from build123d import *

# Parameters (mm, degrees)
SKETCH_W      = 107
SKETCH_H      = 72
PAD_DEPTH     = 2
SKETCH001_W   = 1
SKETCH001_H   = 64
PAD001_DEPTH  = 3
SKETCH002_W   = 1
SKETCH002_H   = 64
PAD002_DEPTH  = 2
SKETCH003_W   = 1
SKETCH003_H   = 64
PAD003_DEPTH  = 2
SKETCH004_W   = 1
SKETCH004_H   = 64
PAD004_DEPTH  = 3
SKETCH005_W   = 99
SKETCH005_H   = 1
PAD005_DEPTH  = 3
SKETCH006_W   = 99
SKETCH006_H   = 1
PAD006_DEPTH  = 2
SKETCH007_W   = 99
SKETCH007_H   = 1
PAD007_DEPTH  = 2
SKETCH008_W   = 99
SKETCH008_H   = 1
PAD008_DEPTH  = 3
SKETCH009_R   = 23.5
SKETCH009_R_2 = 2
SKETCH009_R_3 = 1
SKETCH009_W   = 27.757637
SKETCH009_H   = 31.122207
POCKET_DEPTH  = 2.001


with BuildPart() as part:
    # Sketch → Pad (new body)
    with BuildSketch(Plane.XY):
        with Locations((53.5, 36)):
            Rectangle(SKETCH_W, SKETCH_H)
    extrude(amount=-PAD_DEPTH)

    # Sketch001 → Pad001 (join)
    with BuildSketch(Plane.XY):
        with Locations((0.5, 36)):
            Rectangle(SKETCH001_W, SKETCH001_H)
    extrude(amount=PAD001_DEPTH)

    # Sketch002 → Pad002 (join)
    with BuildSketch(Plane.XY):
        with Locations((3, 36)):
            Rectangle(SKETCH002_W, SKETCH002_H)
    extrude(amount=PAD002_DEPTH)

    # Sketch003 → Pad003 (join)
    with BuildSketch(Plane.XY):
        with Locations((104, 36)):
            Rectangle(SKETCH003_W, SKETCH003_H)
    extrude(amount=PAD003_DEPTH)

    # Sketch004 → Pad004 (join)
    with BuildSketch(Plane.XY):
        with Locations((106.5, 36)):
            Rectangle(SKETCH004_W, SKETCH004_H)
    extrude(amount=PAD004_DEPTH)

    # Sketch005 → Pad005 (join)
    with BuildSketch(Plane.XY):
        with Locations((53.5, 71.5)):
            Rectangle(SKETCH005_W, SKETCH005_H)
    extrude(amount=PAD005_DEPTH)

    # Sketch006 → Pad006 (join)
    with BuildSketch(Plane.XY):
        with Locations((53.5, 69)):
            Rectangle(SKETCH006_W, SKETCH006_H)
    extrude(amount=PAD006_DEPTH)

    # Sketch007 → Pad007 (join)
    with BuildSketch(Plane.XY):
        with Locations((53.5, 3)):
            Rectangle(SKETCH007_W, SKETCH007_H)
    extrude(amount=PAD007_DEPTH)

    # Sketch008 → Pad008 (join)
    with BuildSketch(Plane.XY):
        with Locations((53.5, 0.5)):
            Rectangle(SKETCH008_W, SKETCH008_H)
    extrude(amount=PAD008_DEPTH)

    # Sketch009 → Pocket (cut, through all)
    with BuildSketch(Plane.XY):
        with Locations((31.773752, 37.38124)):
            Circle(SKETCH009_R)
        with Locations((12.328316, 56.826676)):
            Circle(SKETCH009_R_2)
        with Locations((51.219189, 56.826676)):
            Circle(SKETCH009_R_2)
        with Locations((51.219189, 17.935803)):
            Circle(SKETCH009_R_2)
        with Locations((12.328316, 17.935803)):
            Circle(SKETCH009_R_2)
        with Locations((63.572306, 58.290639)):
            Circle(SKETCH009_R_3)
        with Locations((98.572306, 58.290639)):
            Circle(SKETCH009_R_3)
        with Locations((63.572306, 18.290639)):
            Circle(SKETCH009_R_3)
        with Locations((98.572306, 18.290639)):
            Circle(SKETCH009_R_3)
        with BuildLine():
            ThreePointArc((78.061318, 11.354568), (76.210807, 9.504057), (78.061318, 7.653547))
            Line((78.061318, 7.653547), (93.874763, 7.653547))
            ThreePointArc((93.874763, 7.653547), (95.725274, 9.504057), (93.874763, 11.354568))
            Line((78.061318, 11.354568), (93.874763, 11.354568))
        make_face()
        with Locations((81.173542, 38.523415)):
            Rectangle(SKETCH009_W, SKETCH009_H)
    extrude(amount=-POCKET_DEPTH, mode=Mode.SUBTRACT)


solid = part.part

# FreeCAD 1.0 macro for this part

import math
import FreeCAD as App
import Part
import Sketcher

V = App.Vector

doc = App.newDocument("Part")
body = doc.addObject("PartDesign::Body", "Body")

sketch1 = body.newObject("Sketcher::SketchObject", "Sketch")
sketch1.AttachmentSupport = (doc.getObject("XY_Plane"), [""])
sketch1.MapMode = "FlatFace"
sketch1.addGeometry([
    Part.LineSegment(V(0, 72, 0), V(0, 0, 0)),
    Part.LineSegment(V(0, 0, 0), V(107, 0, 0)),
    Part.LineSegment(V(107, 0, 0), V(107, 72, 0)),
    Part.LineSegment(V(107, 72, 0), V(0, 72, 0)),
], False)
sketch1.addConstraint([
    Sketcher.Constraint("Coincident", 0, 2, 1, 1),
    Sketcher.Constraint("Coincident", 1, 2, 2, 1),
    Sketcher.Constraint("Coincident", 2, 2, 3, 1),
    Sketcher.Constraint("Coincident", 3, 2, 0, 1),
    Sketcher.Constraint("Vertical", 0),
    Sketcher.Constraint("Horizontal", 1),
    Sketcher.Constraint("Vertical", 2),
    Sketcher.Constraint("Horizontal", 3),
    Sketcher.Constraint("Coincident", 0, 2, -1, 1),
    Sketcher.Constraint("DistanceX", 1, 1, 1, 2, 107.0),
    Sketcher.Constraint("DistanceY", 0, 2, 0, 1, 72.0),
])
pad1 = body.newObject("PartDesign::Pad", "Pad")
pad1.Profile = sketch1
pad1.Length = 2
pad1.Reversed = True

sketch2 = body.newObject("Sketcher::SketchObject", "Sketch001")
sketch2.AttachmentSupport = (doc.getObject("XY_Plane"), [""])
sketch2.MapMode = "FlatFace"
sketch2.addGeometry([
    Part.LineSegment(V(0, 68, 0), V(0, 4, 0)),
    Part.LineSegment(V(0, 4, 0), V(1, 4, 0)),
    Part.LineSegment(V(1, 4, 0), V(1, 68, 0)),
    Part.LineSegment(V(1, 68, 0), V(0, 68, 0)),
], False)
sketch2.addConstraint([
    Sketcher.Constraint("Coincident", 0, 2, 1, 1),
    Sketcher.Constraint("Coincident", 1, 2, 2, 1),
    Sketcher.Constraint("Coincident", 2, 2, 3, 1),
    Sketcher.Constraint("Coincident", 3, 2, 0, 1),
    Sketcher.Constraint("Vertical", 0),
    Sketcher.Constraint("Horizontal", 1),
    Sketcher.Constraint("Vertical", 2),
    Sketcher.Constraint("Horizontal", 3),
    Sketcher.Constraint("PointOnObject", 0, 2, -2),
    Sketcher.Constraint("DistanceX", 1, 1, 1, 2, 1.0),
    Sketcher.Constraint("DistanceY", 0, 2, 0, 1, 64.0),
    Sketcher.Constraint("DistanceY", -1, 1, 0, 2, 4.0),
])
pad2 = body.newObject("PartDesign::Pad", "Pad001")
pad2.Profile = sketch2
pad2.Length = 3

sketch3 = body.newObject("Sketcher::SketchObject", "Sketch002")
sketch3.AttachmentSupport = (doc.getObject("XY_Plane"), [""])
sketch3.MapMode = "FlatFace"
sketch3.addGeometry([
    Part.LineSegment(V(2.5, 68, 0), V(2.5, 4, 0)),
    Part.LineSegment(V(2.5, 4, 0), V(3.5, 4, 0)),
    Part.LineSegment(V(3.5, 4, 0), V(3.5, 68, 0)),
    Part.LineSegment(V(3.5, 68, 0), V(2.5, 68, 0)),
], False)
sketch3.addConstraint([
    Sketcher.Constraint("Coincident", 0, 2, 1, 1),
    Sketcher.Constraint("Coincident", 1, 2, 2, 1),
    Sketcher.Constraint("Coincident", 2, 2, 3, 1),
    Sketcher.Constraint("Coincident", 3, 2, 0, 1),
    Sketcher.Constraint("Vertical", 0),
    Sketcher.Constraint("Horizontal", 1),
    Sketcher.Constraint("Vertical", 2),
    Sketcher.Constraint("Horizontal", 3),
    Sketcher.Constraint("DistanceX", 1, 1, 1, 2, 1.0),
    Sketcher.Constraint("DistanceY", 0, 2, 0, 1, 64.0),
    Sketcher.Constraint("DistanceY", -1, 1, 0, 2, 4.0),
    Sketcher.Constraint("DistanceX", -1, 1, 0, 2, 2.5),
])
pad3 = body.newObject("PartDesign::Pad", "Pad002")
pad3.Profile = sketch3
pad3.Length = 2

sketch4 = body.newObject("Sketcher::SketchObject", "Sketch003")
sketch4.AttachmentSupport = (doc.getObject("XY_Plane"), [""])
sketch4.MapMode = "FlatFace"
sketch4.addGeometry([
    Part.LineSegment(V(103.5, 68, 0), V(103.5, 4, 0)),
    Part.LineSegment(V(103.5, 4, 0), V(104.5, 4, 0)),
    Part.LineSegment(V(104.5, 4, 0), V(104.5, 68, 0)),
    Part.LineSegment(V(104.5, 68, 0), V(103.5, 68, 0)),
], False)
sketch4.addConstraint([
    Sketcher.Constraint("Coincident", 0, 2, 1, 1),
    Sketcher.Constraint("Coincident", 1, 2, 2, 1),
    Sketcher.Constraint("Coincident", 2, 2, 3, 1),
    Sketcher.Constraint("Coincident", 3, 2, 0, 1),
    Sketcher.Constraint("Vertical", 0),
    Sketcher.Constraint("Horizontal", 1),
    Sketcher.Constraint("Vertical", 2),
    Sketcher.Constraint("Horizontal", 3),
    Sketcher.Constraint("DistanceX", 1, 1, 1, 2, 1.0),
    Sketcher.Constraint("DistanceY", 0, 2, 0, 1, 64.0),
    Sketcher.Constraint("DistanceY", -1, 1, 0, 2, 4.0),
    Sketcher.Constraint("DistanceX", -1, 1, 0, 2, 103.5),
])
pad4 = body.newObject("PartDesign::Pad", "Pad003")
pad4.Profile = sketch4
pad4.Length = 2

sketch5 = body.newObject("Sketcher::SketchObject", "Sketch004")
sketch5.AttachmentSupport = (doc.getObject("XY_Plane"), [""])
sketch5.MapMode = "FlatFace"
sketch5.addGeometry([
    Part.LineSegment(V(106, 68, 0), V(106, 4, 0)),
    Part.LineSegment(V(106, 4, 0), V(107, 4, 0)),
    Part.LineSegment(V(107, 4, 0), V(107, 68, 0)),
    Part.LineSegment(V(107, 68, 0), V(106, 68, 0)),
], False)
sketch5.addConstraint([
    Sketcher.Constraint("Coincident", 0, 2, 1, 1),
    Sketcher.Constraint("Coincident", 1, 2, 2, 1),
    Sketcher.Constraint("Coincident", 2, 2, 3, 1),
    Sketcher.Constraint("Coincident", 3, 2, 0, 1),
    Sketcher.Constraint("Vertical", 0),
    Sketcher.Constraint("Horizontal", 1),
    Sketcher.Constraint("Vertical", 2),
    Sketcher.Constraint("Horizontal", 3),
    Sketcher.Constraint("DistanceX", 1, 1, 1, 2, 1.0),
    Sketcher.Constraint("DistanceY", 0, 2, 0, 1, 64.0),
    Sketcher.Constraint("DistanceX", -1, 1, 0, 2, 106.0),
    Sketcher.Constraint("DistanceY", -1, 1, 0, 2, 4.0),
])
pad5 = body.newObject("PartDesign::Pad", "Pad004")
pad5.Profile = sketch5
pad5.Length = 3

sketch6 = body.newObject("Sketcher::SketchObject", "Sketch005")
sketch6.AttachmentSupport = (doc.getObject("XY_Plane"), [""])
sketch6.MapMode = "FlatFace"
sketch6.addGeometry([
    Part.LineSegment(V(4, 72, 0), V(4, 71, 0)),
    Part.LineSegment(V(4, 71, 0), V(103, 71, 0)),
    Part.LineSegment(V(103, 71, 0), V(103, 72, 0)),
    Part.LineSegment(V(103, 72, 0), V(4, 72, 0)),
], False)
sketch6.addConstraint([
    Sketcher.Constraint("Coincident", 0, 2, 1, 1),
    Sketcher.Constraint("Coincident", 1, 2, 2, 1),
    Sketcher.Constraint("Coincident", 2, 2, 3, 1),
    Sketcher.Constraint("Coincident", 3, 2, 0, 1),
    Sketcher.Constraint("Vertical", 0),
    Sketcher.Constraint("Horizontal", 1),
    Sketcher.Constraint("Vertical", 2),
    Sketcher.Constraint("Horizontal", 3),
    Sketcher.Constraint("DistanceX", 1, 1, 1, 2, 99.0),
    Sketcher.Constraint("DistanceY", 0, 2, 0, 1, 1.0),
    Sketcher.Constraint("DistanceX", -1, 1, 0, 2, 4.0),
    Sketcher.Constraint("DistanceY", -1, 1, 0, 2, 71.0),
])
pad6 = body.newObject("PartDesign::Pad", "Pad005")
pad6.Profile = sketch6
pad6.Length = 3

sketch7 = body.newObject("Sketcher::SketchObject", "Sketch006")
sketch7.AttachmentSupport = (doc.getObject("XY_Plane"), [""])
sketch7.MapMode = "FlatFace"
sketch7.addGeometry([
    Part.LineSegment(V(4, 69.5, 0), V(4, 68.5, 0)),
    Part.LineSegment(V(4, 68.5, 0), V(103, 68.5, 0)),
    Part.LineSegment(V(103, 68.5, 0), V(103, 69.5, 0)),
    Part.LineSegment(V(103, 69.5, 0), V(4, 69.5, 0)),
], False)
sketch7.addConstraint([
    Sketcher.Constraint("Coincident", 0, 2, 1, 1),
    Sketcher.Constraint("Coincident", 1, 2, 2, 1),
    Sketcher.Constraint("Coincident", 2, 2, 3, 1),
    Sketcher.Constraint("Coincident", 3, 2, 0, 1),
    Sketcher.Constraint("Vertical", 0),
    Sketcher.Constraint("Horizontal", 1),
    Sketcher.Constraint("Vertical", 2),
    Sketcher.Constraint("Horizontal", 3),
    Sketcher.Constraint("DistanceX", 1, 1, 1, 2, 99.0),
    Sketcher.Constraint("DistanceY", 0, 2, 0, 1, 1.0),
    Sketcher.Constraint("DistanceX", -1, 1, 0, 2, 4.0),
    Sketcher.Constraint("DistanceY", -1, 1, 0, 2, 68.5),
])
pad7 = body.newObject("PartDesign::Pad", "Pad006")
pad7.Profile = sketch7
pad7.Length = 2

sketch8 = body.newObject("Sketcher::SketchObject", "Sketch007")
sketch8.AttachmentSupport = (doc.getObject("XY_Plane"), [""])
sketch8.MapMode = "FlatFace"
sketch8.addGeometry([
    Part.LineSegment(V(4, 3.5, 0), V(4, 2.5, 0)),
    Part.LineSegment(V(4, 2.5, 0), V(103, 2.5, 0)),
    Part.LineSegment(V(103, 2.5, 0), V(103, 3.5, 0)),
    Part.LineSegment(V(103, 3.5, 0), V(4, 3.5, 0)),
], False)
sketch8.addConstraint([
    Sketcher.Constraint("Coincident", 0, 2, 1, 1),
    Sketcher.Constraint("Coincident", 1, 2, 2, 1),
    Sketcher.Constraint("Coincident", 2, 2, 3, 1),
    Sketcher.Constraint("Coincident", 3, 2, 0, 1),
    Sketcher.Constraint("Vertical", 0),
    Sketcher.Constraint("Horizontal", 1),
    Sketcher.Constraint("Vertical", 2),
    Sketcher.Constraint("Horizontal", 3),
    Sketcher.Constraint("DistanceX", 1, 1, 1, 2, 99.0),
    Sketcher.Constraint("DistanceY", 0, 2, 0, 1, 1.0),
    Sketcher.Constraint("DistanceX", -1, 1, 0, 2, 4.0),
    Sketcher.Constraint("DistanceY", -1, 1, 0, 2, 2.5),
])
pad8 = body.newObject("PartDesign::Pad", "Pad007")
pad8.Profile = sketch8
pad8.Length = 2

sketch9 = body.newObject("Sketcher::SketchObject", "Sketch008")
sketch9.AttachmentSupport = (doc.getObject("XY_Plane"), [""])
sketch9.MapMode = "FlatFace"
sketch9.addGeometry([
    Part.LineSegment(V(4, 1, 0), V(4, 0, 0)),
    Part.LineSegment(V(4, 0, 0), V(103, 0, 0)),
    Part.LineSegment(V(103, 0, 0), V(103, 1, 0)),
    Part.LineSegment(V(103, 1, 0), V(4, 1, 0)),
], False)
sketch9.addConstraint([
    Sketcher.Constraint("Coincident", 0, 2, 1, 1),
    Sketcher.Constraint("Coincident", 1, 2, 2, 1),
    Sketcher.Constraint("Coincident", 2, 2, 3, 1),
    Sketcher.Constraint("Coincident", 3, 2, 0, 1),
    Sketcher.Constraint("Vertical", 0),
    Sketcher.Constraint("Horizontal", 1),
    Sketcher.Constraint("Vertical", 2),
    Sketcher.Constraint("Horizontal", 3),
    Sketcher.Constraint("PointOnObject", 0, 2, -1),
    Sketcher.Constraint("DistanceX", 1, 1, 1, 2, 99.0),
    Sketcher.Constraint("DistanceY", 0, 2, 0, 1, 1.0),
    Sketcher.Constraint("DistanceX", -1, 1, 0, 2, 4.0),
])
pad9 = body.newObject("PartDesign::Pad", "Pad008")
pad9.Profile = sketch9
pad9.Length = 3

sketch10 = body.newObject("Sketcher::SketchObject", "Sketch009")
sketch10.AttachmentSupport = (doc.getObject("XY_Plane"), [""])
sketch10.MapMode = "FlatFace"
sketch10.addGeometry([
    Part.Circle(V(31.773752, 37.38124, 0), V(0, 0, 1), 23.5),
    Part.Circle(V(12.328316, 56.826676, 0), V(0, 0, 1), 2),
    Part.Circle(V(51.219189, 56.826676, 0), V(0, 0, 1), 2),
    Part.Circle(V(51.219189, 17.935803, 0), V(0, 0, 1), 2),
    Part.Circle(V(12.328316, 17.935803, 0), V(0, 0, 1), 2),
    Part.Circle(V(63.572306, 58.290639, 0), V(0, 0, 1), 1),
    Part.Circle(V(98.572306, 58.290639, 0), V(0, 0, 1), 1),
    Part.Circle(V(63.572306, 18.290639, 0), V(0, 0, 1), 1),
    Part.Circle(V(98.572306, 18.290639, 0), V(0, 0, 1), 1),
    Part.ArcOfCircle(Part.Circle(V(78.061318, 9.504058, 0), V(0, 0, 1), 1.85051), math.radians(89.999985), math.radians(270.000015)),
    Part.LineSegment(V(78.061318, 7.653547, 0), V(93.874763, 7.653547, 0)),
    Part.ArcOfCircle(Part.Circle(V(93.874764, 9.504058, 0), V(0, 0, 1), 1.85051), math.radians(-90.000015), math.radians(90.000015)),
    Part.LineSegment(V(93.874763, 11.354568, 0), V(78.061318, 11.354568, 0)),
    Part.LineSegment(V(67.294724, 54.084519, 0), V(67.294724, 22.962311, 0)),
    Part.LineSegment(V(67.294724, 22.962311, 0), V(95.052361, 22.962311, 0)),
    Part.LineSegment(V(95.052361, 22.962311, 0), V(95.052361, 54.084519, 0)),
    Part.LineSegment(V(95.052361, 54.084519, 0), V(67.294724, 54.084519, 0)),
], False)
sketch10.addConstraint([
    Sketcher.Constraint("Tangent", 9, 2, 10, 1),
    Sketcher.Constraint("Tangent", 10, 2, 11, 1),
    Sketcher.Constraint("Tangent", 11, 2, 12, 1),
    Sketcher.Constraint("Tangent", 12, 2, 9, 1),
    Sketcher.Constraint("Coincident", 13, 2, 14, 1),
    Sketcher.Constraint("Coincident", 14, 2, 15, 1),
    Sketcher.Constraint("Coincident", 15, 2, 16, 1),
    Sketcher.Constraint("Coincident", 16, 2, 13, 1),
    Sketcher.Constraint("Horizontal", 10),
    Sketcher.Constraint("Horizontal", 12),
    Sketcher.Constraint("Vertical", 13),
    Sketcher.Constraint("Horizontal", 14),
    Sketcher.Constraint("Vertical", 15),
    Sketcher.Constraint("Horizontal", 16),
    Sketcher.Constraint("Equal", 1, 2),
    Sketcher.Constraint("Equal", 2, 3),
    Sketcher.Constraint("Equal", 3, 4),
    Sketcher.Constraint("Equal", 5, 6),
    Sketcher.Constraint("Equal", 6, 7),
    Sketcher.Constraint("Equal", 7, 8),
    Sketcher.Constraint("Horizontal", 1, 3, 2, 3),
    Sketcher.Constraint("Horizontal", 3, 3, 4, 3),
    Sketcher.Constraint("Horizontal", 5, 3, 6, 3),
    Sketcher.Constraint("Horizontal", 7, 3, 8, 3),
    Sketcher.Constraint("Vertical", 2, 3, 3, 3),
    Sketcher.Constraint("Vertical", 1, 3, 4, 3),
    Sketcher.Constraint("Vertical", 5, 3, 7, 3),
    Sketcher.Constraint("Vertical", 6, 3, 8, 3),
    Sketcher.Constraint("Diameter", 0, 47.0),
    Sketcher.Constraint("Diameter", 1, 4.0),
    Sketcher.Constraint("Diameter", 5, 2.0),
    Sketcher.Constraint("DistanceX", 5, 3, 6, 3, 35.0),
    Sketcher.Constraint("DistanceY", 7, 3, 5, 3, 40.0),
    Sketcher.Constraint("Radius", 9, 1.85051),
    Sketcher.Constraint("DistanceY", 0, 3, 5, 3, 20.909399),
    Sketcher.Constraint("DistanceX", 10, 1, 10, 2, 15.813445),
    Sketcher.Constraint("DistanceX", 14, 1, 14, 2, 27.757637),
    Sketcher.Constraint("DistanceY", 13, 2, 13, 1, 31.122207),
    Sketcher.Constraint("DistanceY", -1, 1, 0, 3, 37.38124),
    Sketcher.Constraint("DistanceX", -1, 1, 2, 3, 51.219189),
    Sketcher.Constraint("DistanceX", -1, 1, 9, 2, 78.061318),
    Sketcher.Constraint("DistanceY", -1, 1, 13, 2, 22.962311),
    Sketcher.Constraint("DistanceX", -1, 1, 14, 2, 95.052361),
    Sketcher.Constraint("DistanceX", 1, 3, 5, 3, 51.24399),
    Sketcher.Constraint("DistanceX", 7, 3, 9, 3, 14.489012),
    Sketcher.Constraint("DistanceY", 9, 3, 7, 3, 8.786581),
    Sketcher.Constraint("DistanceY", 3, 3, 13, 2, 5.026508),
    Sketcher.Constraint("DistanceX", -1, 1, 0, 3, 31.773752),
    Sketcher.Constraint("DistanceY", -1, 1, 1, 3, 56.826676),
])
pocket1 = body.newObject("PartDesign::Pocket", "Pocket")
pocket1.Profile = sketch10
pocket1.Type = "ThroughAll"

doc.recompute()
